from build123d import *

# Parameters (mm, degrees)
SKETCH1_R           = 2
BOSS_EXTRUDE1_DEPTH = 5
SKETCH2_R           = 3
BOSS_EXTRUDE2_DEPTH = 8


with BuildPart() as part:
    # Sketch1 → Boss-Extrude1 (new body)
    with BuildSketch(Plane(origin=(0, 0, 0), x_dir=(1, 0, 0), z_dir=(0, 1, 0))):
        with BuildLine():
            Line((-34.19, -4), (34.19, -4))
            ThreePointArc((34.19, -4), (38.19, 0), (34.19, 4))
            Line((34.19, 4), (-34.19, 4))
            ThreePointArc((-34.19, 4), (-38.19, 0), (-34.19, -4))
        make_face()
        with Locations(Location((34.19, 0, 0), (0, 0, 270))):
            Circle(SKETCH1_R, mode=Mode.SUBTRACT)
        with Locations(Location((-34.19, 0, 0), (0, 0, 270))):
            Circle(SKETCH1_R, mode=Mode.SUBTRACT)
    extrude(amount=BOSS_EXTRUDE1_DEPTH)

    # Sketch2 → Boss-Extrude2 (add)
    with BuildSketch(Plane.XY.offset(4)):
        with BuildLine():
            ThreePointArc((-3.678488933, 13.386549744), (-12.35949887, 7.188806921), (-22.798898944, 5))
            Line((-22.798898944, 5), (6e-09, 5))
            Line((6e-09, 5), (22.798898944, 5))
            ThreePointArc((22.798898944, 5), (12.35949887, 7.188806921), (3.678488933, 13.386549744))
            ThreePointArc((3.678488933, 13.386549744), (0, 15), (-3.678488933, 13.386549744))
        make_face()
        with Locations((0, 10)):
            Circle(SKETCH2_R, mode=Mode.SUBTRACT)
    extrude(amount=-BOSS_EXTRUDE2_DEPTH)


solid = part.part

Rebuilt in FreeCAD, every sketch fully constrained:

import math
import FreeCAD as App
import Part
import Sketcher
Q = App.Units.Quantity

doc = App.newDocument("Part")
body = doc.addObject("PartDesign::Body", "Body")

# Sketch on XZ plane
sketch1 = body.newObject("Sketcher::SketchObject", "Sketch")
sketch1.AttachmentSupport = (doc.getObject("XZ_Plane"), [""])
sketch1.MapMode = "FlatFace"
sketch1.addGeometry(Part.LineSegment(App.Vector(-34.2, 4, 0), App.Vector(34.2, 4, 0)), False)
sketch1.addGeometry(Part.ArcOfCircle(Part.Circle(App.Vector(34.2, 0, 0), App.Vector(0, 0, 1), 4), math.radians(-90), math.radians(90)), False)
sketch1.addGeometry(Part.LineSegment(App.Vector(34.2, -4, 0), App.Vector(-34.2, -4, 0)), False)
sketch1.addGeometry(Part.ArcOfCircle(Part.Circle(App.Vector(-34.2, 0, 0), App.Vector(0, 0, 1), 4), math.radians(90), math.radians(270)), False)
sketch1.addGeometry(Part.Circle(App.Vector(-34.2, 0, 0), App.Vector(0, 0, 1), 2), False)
sketch1.addGeometry(Part.Circle(App.Vector(34.2, 0, 0), App.Vector(0, 0, 1), 2), False)
sketch1.addConstraint(Sketcher.Constraint("Tangent", 0, 2, 1, 2))
sketch1.addConstraint(Sketcher.Constraint("Tangent", 1, 1, 2, 1))
sketch1.addConstraint(Sketcher.Constraint("Tangent", 2, 2, 3, 2))
sketch1.addConstraint(Sketcher.Constraint("Tangent", 3, 1, 0, 1))
sketch1.addConstraint(Sketcher.Constraint("Horizontal", 0))
sketch1.addConstraint(Sketcher.Constraint("Horizontal", 2))
sketch1.addConstraint(Sketcher.Constraint("Coincident", 4, 3, 3, 3))
sketch1.addConstraint(Sketcher.Constraint("Coincident", 5, 3, 1, 3))
sketch1.addConstraint(Sketcher.Constraint("Equal", 4, 5))
sketch1.addConstraint(Sketcher.Constraint("Symmetric", 1, 3, 3, 3, -1, 1))
sketch1.addConstraint(Sketcher.Constraint("Diameter", 4, Q("4 mm")))
sketch1.addConstraint(Sketcher.Constraint("Radius", 1, Q("4 mm")))
sketch1.addConstraint(Sketcher.Constraint("DistanceX", 0, 1, 0, 2, Q("68.38 mm")))
pad1 = body.newObject("PartDesign::Pad", "Pad")
pad1.Profile = sketch1
pad1.Length = 5
pad1.Reversed = True

# Sketch on XY plane
sketch2 = body.newObject("Sketcher::SketchObject", "Sketch001")
sketch2.AttachmentSupport = (doc.getObject("XY_Plane"), [""])
sketch2.MapMode = "FlatFace"
sketch2.AttachmentOffset = App.Placement(App.Vector(0, 0, 4), App.Rotation())
sketch2.addGeometry(Part.ArcOfCircle(Part.Circle(App.Vector(-22.8, 31, 0), App.Vector(0, 0, 1), 26), math.radians(-90), math.radians(-43)), False)
sketch2.addGeometry(Part.LineSegment(App.Vector(-22.8, 5, 0), App.Vector(22.8, 5, 0)), False)
sketch2.addGeometry(Part.ArcOfCircle(Part.Circle(App.Vector(22.8, 31, 0), App.Vector(0, 0, 1), 26), math.radians(-137), math.radians(-90)), False)
sketch2.addGeometry(Part.ArcOfCircle(Part.Circle(App.Vector(0, 10, 0), App.Vector(0, 0, 1), 5), math.radians(43), math.radians(137)), False)
sketch2.addGeometry(Part.Circle(App.Vector(0, 10, 0), App.Vector(0, 0, 1), 3), False)
sketch2.addConstraint(Sketcher.Constraint("Tangent", 0, 1, 1, 1))
sketch2.addConstraint(Sketcher.Constraint("Tangent", 1, 2, 2, 2))
sketch2.addConstraint(Sketcher.Constraint("Tangent", 2, 1, 3, 1))
sketch2.addConstraint(Sketcher.Constraint("Tangent", 3, 2, 0, 2))
sketch2.addConstraint(Sketcher.Constraint("Horizontal", 1))
sketch2.addConstraint(Sketcher.Constraint("Coincident", 4, 3, 3, 3))
sketch2.addConstraint(Sketcher.Constraint("Equal", 0, 2))
sketch2.addConstraint(Sketcher.Constraint("PointOnObject", 3, 3, -2))
sketch2.addConstraint(Sketcher.Constraint("Diameter", 4, Q("6 mm")))
sketch2.addConstraint(Sketcher.Constraint("Radius", 3, Q("5 mm")))
sketch2.addConstraint(Sketcher.Constraint("DistanceY", -1, 1, 3, 3, Q("10 mm")))
sketch2.addConstraint(Sketcher.Constraint("DistanceY", -1, 1, 0, 1, Q("5 mm")))
sketch2.addConstraint(Sketcher.Constraint("Radius", 0, Q("25.98949 mm")))
pad2 = body.newObject("PartDesign::Pad", "Pad001")
pad2.Profile = sketch2
pad2.Length = 8
pad2.Reversed = True

doc.recompute()
